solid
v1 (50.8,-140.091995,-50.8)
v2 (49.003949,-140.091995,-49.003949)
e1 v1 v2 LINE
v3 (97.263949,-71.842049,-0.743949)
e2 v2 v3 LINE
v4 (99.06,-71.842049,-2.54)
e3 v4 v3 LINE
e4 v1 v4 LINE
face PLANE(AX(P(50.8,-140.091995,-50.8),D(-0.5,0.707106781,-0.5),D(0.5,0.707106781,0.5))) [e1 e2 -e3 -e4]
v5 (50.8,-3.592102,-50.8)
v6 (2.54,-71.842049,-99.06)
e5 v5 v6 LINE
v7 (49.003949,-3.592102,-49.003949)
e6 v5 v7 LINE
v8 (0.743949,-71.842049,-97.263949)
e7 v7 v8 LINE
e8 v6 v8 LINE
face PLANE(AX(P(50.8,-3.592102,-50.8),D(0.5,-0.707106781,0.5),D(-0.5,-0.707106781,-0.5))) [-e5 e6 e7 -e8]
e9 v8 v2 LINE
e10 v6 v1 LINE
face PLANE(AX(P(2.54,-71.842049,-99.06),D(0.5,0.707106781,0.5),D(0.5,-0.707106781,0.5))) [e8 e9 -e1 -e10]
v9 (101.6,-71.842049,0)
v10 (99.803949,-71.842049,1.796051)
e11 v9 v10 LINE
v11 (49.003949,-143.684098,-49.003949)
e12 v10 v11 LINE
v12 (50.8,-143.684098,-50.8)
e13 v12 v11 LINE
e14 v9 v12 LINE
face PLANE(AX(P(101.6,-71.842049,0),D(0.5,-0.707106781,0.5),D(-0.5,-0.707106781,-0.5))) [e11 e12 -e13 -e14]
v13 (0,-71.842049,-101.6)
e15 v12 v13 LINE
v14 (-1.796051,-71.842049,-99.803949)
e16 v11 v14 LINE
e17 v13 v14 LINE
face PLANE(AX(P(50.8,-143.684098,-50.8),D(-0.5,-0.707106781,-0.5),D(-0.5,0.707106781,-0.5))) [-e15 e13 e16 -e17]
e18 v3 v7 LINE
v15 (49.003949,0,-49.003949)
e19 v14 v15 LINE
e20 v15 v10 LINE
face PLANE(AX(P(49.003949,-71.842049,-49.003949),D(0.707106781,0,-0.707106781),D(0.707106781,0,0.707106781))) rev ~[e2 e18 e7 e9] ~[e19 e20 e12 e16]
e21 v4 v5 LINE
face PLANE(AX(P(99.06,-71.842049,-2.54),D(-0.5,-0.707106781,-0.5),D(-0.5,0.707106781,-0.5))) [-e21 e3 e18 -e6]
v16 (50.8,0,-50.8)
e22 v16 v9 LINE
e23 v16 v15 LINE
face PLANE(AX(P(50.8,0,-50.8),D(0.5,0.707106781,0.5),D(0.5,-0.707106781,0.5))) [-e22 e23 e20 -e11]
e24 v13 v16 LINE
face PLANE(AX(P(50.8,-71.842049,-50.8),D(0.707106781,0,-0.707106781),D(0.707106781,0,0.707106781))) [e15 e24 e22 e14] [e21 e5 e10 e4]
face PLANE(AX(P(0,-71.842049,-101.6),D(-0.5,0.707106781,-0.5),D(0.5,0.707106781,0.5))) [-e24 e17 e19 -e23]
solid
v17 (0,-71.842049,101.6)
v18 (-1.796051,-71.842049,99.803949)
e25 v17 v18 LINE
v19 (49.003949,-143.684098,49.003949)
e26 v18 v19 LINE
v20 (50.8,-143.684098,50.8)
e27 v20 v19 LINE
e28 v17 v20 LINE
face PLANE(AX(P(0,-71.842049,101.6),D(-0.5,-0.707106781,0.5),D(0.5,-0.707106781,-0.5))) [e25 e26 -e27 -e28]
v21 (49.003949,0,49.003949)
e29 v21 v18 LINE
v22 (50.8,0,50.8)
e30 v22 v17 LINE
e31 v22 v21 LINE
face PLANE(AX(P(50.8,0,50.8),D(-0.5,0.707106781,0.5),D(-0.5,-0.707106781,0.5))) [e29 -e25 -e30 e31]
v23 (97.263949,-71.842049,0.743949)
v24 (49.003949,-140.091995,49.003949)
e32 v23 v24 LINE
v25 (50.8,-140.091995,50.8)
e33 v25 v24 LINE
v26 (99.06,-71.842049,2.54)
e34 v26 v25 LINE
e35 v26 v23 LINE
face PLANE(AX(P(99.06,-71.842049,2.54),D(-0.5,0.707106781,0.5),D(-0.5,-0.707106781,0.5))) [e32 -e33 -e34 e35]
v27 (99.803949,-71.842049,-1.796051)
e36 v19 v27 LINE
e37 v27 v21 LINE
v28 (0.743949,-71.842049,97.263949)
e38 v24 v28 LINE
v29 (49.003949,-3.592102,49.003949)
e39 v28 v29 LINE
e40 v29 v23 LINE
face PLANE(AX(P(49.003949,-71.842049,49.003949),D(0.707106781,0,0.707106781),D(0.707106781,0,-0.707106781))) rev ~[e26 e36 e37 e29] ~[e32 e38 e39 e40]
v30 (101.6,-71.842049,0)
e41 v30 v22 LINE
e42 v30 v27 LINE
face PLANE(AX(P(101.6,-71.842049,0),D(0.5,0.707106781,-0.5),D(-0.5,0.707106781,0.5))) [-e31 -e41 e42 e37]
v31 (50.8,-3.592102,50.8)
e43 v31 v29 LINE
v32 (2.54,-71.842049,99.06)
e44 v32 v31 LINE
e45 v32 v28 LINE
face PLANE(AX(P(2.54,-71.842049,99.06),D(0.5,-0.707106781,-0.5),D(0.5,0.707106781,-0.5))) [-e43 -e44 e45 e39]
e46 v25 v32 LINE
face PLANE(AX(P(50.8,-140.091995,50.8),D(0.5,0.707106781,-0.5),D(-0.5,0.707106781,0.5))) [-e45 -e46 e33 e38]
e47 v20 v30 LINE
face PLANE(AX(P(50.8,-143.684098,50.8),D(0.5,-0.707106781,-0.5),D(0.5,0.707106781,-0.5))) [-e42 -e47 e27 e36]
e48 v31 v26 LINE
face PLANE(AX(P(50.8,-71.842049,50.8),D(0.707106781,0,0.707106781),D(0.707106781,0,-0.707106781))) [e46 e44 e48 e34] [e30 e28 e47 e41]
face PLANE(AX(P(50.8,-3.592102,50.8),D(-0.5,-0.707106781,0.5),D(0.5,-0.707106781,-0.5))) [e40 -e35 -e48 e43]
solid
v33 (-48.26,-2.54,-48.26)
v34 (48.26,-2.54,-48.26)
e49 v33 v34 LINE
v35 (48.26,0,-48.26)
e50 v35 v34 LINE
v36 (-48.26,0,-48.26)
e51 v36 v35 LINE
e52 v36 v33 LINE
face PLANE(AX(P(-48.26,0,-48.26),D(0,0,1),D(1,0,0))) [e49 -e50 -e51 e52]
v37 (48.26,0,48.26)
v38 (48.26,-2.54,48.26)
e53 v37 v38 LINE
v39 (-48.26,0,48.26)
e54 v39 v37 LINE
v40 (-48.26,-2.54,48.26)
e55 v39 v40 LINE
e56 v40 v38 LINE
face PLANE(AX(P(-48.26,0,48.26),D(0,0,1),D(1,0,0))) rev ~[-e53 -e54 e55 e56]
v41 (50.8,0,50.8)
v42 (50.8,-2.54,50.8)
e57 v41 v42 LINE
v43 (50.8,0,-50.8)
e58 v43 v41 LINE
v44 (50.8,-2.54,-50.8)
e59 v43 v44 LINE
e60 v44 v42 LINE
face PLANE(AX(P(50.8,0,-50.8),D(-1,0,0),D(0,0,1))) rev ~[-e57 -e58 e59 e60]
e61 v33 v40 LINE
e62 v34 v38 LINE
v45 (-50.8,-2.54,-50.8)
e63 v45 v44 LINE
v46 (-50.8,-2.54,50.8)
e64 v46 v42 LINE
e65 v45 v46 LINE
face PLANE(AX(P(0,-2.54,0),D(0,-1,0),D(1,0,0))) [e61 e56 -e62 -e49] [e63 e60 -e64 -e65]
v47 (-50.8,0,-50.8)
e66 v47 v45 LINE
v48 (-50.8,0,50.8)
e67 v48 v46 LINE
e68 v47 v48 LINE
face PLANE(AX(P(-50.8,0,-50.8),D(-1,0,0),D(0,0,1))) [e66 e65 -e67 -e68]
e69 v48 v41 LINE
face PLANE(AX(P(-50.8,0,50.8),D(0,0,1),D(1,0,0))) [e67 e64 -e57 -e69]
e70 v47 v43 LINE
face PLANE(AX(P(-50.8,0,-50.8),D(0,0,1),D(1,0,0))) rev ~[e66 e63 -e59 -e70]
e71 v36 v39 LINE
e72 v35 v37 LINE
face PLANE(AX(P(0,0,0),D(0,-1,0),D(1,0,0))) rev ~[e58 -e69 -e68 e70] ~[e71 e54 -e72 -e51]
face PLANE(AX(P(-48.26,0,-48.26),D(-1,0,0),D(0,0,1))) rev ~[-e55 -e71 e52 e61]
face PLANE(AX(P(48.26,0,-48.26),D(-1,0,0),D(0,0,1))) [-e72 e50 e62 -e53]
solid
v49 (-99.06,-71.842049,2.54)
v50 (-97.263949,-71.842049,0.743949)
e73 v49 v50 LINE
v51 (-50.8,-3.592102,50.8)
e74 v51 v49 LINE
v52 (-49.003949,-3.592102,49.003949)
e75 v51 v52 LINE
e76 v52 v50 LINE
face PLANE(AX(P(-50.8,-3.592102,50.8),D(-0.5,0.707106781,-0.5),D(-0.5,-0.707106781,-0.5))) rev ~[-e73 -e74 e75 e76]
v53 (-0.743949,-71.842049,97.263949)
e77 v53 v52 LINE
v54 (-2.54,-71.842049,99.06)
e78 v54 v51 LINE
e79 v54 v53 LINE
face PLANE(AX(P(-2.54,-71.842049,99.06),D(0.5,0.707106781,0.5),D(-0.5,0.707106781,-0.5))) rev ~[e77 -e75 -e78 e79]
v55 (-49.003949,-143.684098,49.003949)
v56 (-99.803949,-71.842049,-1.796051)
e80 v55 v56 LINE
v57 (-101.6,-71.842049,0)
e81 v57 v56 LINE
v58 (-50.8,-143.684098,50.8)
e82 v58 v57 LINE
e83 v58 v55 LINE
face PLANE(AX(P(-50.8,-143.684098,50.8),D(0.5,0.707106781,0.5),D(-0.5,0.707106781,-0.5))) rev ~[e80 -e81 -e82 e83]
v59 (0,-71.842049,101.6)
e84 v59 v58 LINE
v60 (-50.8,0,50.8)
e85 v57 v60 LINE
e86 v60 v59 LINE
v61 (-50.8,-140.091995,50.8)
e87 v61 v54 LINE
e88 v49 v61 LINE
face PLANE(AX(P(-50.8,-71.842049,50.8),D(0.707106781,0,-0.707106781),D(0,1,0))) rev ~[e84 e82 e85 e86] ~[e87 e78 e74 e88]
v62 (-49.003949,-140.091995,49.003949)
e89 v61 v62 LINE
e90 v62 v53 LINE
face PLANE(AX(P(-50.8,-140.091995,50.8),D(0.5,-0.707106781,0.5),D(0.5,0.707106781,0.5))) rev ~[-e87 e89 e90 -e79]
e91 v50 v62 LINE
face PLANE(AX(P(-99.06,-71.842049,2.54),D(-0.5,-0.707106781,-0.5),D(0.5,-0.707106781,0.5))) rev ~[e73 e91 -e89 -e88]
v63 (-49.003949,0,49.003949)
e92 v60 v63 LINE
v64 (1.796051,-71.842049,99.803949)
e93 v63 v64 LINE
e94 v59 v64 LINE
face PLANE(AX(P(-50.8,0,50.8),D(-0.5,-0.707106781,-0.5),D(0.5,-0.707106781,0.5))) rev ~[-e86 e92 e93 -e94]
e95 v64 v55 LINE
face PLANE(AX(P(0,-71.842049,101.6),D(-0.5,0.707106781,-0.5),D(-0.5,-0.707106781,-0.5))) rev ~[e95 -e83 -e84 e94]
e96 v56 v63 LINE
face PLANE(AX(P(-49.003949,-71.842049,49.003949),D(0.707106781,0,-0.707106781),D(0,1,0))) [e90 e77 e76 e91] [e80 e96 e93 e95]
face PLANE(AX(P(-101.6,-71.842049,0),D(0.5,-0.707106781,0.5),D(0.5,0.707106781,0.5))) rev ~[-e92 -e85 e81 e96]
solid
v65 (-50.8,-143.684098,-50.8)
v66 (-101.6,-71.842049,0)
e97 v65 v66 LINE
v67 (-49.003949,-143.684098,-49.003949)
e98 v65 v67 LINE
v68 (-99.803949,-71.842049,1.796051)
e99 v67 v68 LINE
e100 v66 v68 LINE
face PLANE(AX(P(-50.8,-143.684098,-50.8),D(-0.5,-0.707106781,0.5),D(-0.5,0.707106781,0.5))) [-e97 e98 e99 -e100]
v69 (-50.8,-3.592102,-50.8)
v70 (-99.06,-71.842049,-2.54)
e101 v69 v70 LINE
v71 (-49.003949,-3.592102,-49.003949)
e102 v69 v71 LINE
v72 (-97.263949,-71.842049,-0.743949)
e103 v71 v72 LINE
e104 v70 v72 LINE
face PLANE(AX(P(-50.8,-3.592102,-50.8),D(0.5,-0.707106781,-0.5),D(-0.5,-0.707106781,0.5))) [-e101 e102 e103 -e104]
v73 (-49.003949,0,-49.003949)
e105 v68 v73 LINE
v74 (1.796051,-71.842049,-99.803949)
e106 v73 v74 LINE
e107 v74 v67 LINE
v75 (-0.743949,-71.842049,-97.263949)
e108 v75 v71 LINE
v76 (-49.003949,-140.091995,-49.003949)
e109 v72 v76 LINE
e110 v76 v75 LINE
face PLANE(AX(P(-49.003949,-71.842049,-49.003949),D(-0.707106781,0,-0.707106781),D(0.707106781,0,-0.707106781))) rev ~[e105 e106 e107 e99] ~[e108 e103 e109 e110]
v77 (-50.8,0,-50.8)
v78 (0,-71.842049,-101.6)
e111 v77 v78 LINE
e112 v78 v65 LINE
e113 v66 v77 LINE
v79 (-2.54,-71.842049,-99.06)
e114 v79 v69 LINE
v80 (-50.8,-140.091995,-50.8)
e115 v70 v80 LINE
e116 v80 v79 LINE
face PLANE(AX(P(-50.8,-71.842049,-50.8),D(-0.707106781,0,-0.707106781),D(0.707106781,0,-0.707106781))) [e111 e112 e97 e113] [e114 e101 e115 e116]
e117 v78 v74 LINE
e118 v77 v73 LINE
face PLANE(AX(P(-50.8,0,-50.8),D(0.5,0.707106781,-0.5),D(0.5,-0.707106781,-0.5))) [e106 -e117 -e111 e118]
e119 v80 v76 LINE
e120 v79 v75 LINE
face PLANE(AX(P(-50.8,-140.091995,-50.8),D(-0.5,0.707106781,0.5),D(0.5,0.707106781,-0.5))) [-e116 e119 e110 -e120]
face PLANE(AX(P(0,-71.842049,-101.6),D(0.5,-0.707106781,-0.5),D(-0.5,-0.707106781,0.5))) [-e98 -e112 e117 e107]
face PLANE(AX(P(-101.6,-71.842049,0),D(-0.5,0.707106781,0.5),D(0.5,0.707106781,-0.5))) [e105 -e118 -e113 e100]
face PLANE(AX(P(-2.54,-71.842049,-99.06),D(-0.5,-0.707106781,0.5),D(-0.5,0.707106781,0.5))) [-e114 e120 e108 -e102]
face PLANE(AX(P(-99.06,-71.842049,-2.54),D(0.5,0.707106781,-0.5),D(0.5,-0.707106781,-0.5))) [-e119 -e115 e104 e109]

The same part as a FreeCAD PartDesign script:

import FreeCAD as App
import Part
import Sketcher

V = App.Vector
Q = App.Units.Quantity


def add_polygon(sketch, points):
    """Adds a closed chain of lines whose ends are joined by coincident constraints."""
    first, n = sketch.GeometryCount, len(points)
    for a, b in zip(points, points[1:] + points[:1]):
        sketch.addGeometry(Part.LineSegment(App.Vector(*a, 0), App.Vector(*b, 0)), False)
    for i in range(n):
        sketch.addConstraint(Sketcher.Constraint("Coincident", first + i, 2, first + (i + 1) % n, 1))

doc = App.newDocument("Part")
body = doc.addObject("PartDesign::Body", "Body")

# Sketch on XZ plane
sketch1 = body.newObject("Sketcher::SketchObject", "Sketch")
sketch1.AttachmentSupport = (doc.getObject("XZ_Plane"), [""])
sketch1.MapMode = "FlatFace"
add_polygon(sketch1, [(-50.8, 50.8), (-50.8, -50.8), (50.8, -50.8), (50.8, 50.8)])  # lines 0-3
add_polygon(sketch1, [(48.26, -48.26), (-48.26, -48.26), (-48.26, 48.26), (48.26, 48.26)])  # lines 4-7
sketch1.addConstraint([
    Sketcher.Constraint("Vertical", 0),
    Sketcher.Constraint("Horizontal", 1),
    Sketcher.Constraint("Vertical", 2),
    Sketcher.Constraint("Horizontal", 3),
    Sketcher.Constraint("Horizontal", 4),
    Sketcher.Constraint("Vertical", 5),
    Sketcher.Constraint("Horizontal", 6),
    Sketcher.Constraint("Vertical", 7),
    Sketcher.Constraint("Symmetric", 0, 2, 2, 2, -1, 1),
    Sketcher.Constraint("Symmetric", 4, 2, 6, 2, -1, 1),
    Sketcher.Constraint("Equal", 3, 0),
    Sketcher.Constraint("Equal", 6, 5),
    Sketcher.Constraint("DistanceX", 1, 1, 1, 2, Q("4 in")),
    Sketcher.Constraint("DistanceX", 4, 2, 4, 1, Q("3.8 in")),
])
pad1 = body.newObject("PartDesign::Pad", "Pad")
pad1.Profile = sketch1
pad1.Length = Q("0.1 in")
body2 = doc.addObject("PartDesign::Body", "Body001")

# Sketch on an angled plane
sketch2 = body2.newObject("Sketcher::SketchObject", "Sketch001")
sketch2.Placement = App.Placement(V(50.8, 0, 50.8), App.Rotation(V(0.707106781, 0, -0.707106781), V(0, 0.999999999, 0), V(0.707106781, 0, 0.707106781), "ZXY"))
add_polygon(sketch2, [(71.842049, -71.842049), (0, 0), (-71.842049, -71.842049), (0, -143.684098)])  # lines 0-3
add_polygon(sketch2, [(68.249946, -71.842049), (0, -140.091995), (-68.249946, -71.842049), (0, -3.592102)])  # lines 4-7
sketch2.addConstraint([
    Sketcher.Constraint("Coincident", 0, 2, -1, 1),
    Sketcher.Constraint("Symmetric", 1, 2, 3, 2, -2),
    Sketcher.Constraint("Symmetric", 5, 2, 7, 2, -2),
    Sketcher.Constraint("PointOnObject", 2, 2, -2),
    Sketcher.Constraint("PointOnObject", 4, 2, -2),
    Sketcher.Constraint("PointOnObject", 6, 2, -2),
    Sketcher.Constraint("Perpendicular", 0, 1),
    Sketcher.Constraint("Perpendicular", 1, 2),
    Sketcher.Constraint("Parallel", 3, 4),
    Sketcher.Constraint("Perpendicular", 5, 6),
    Sketcher.Constraint("Horizontal", 3, 2, 5, 2),
    Sketcher.Constraint("Distance", 0, Q("4 in")),
    Sketcher.Constraint("Distance", 4, Q("3.8 in")),
])
pad2 = body2.newObject("PartDesign::Pad", "Pad001")
pad2.Profile = sketch2
pad2.Length = Q("0.1 in")
pad2.Reversed = True
body3 = doc.addObject("PartDesign::Body", "Body002")

# Sketch on an angled plane
sketch3 = body3.newObject("Sketcher::SketchObject", "Sketch002")
sketch3.Placement = App.Placement(V(-50.8, 0, 50.8), App.Rotation(V(0, 1, 0), V(0.707106781, 0, 0.707106781), V(0.707106781, 0, -0.707106781), "ZXY"))
add_polygon(sketch3, [(0, 0), (-71.842049, 71.842049), (-143.684098, 0), (-71.842049, -71.842049)])  # lines 0-3
add_polygon(sketch3, [(-3.592102, 0), (-71.842049, -68.249946), (-140.091995, 0), (-71.842049, 68.249946)])  # lines 4-7
sketch3.addConstraint([
    Sketcher.Constraint("Coincident", 3, 2, -1, 1),
    Sketcher.Constraint("Symmetric", 0, 2, 2, 2, -1),
    Sketcher.Constraint("Symmetric", 4, 2, 6, 2, -1),
    Sketcher.Constraint("PointOnObject", 1, 2, -1),
    Sketcher.Constraint("PointOnObject", 5, 2, -1),
    Sketcher.Constraint("PointOnObject", 7, 2, -1),
    Sketcher.Constraint("Perpendicular", 0, 1),
    Sketcher.Constraint("Perpendicular", 1, 2),
    Sketcher.Constraint("Parallel", 3, 4),
    Sketcher.Constraint("Perpendicular", 4, 5),
    Sketcher.Constraint("Vertical", 2, 2, 4, 2),
    Sketcher.Constraint("Distance", 0, Q("4 in")),
    Sketcher.Constraint("Distance", 4, Q("3.8 in")),
])
pad3 = body3.newObject("PartDesign::Pad", "Pad002")
pad3.Profile = sketch3
pad3.Length = Q("0.1 in")
body4 = doc.addObject("PartDesign::Body", "Body003")

# Sketch on an angled plane
sketch4 = body4.newObject("Sketcher::SketchObject", "Sketch003")
sketch4.Placement = App.Placement(V(50.8, 0, -50.8), App.Rotation(V(0.707106781, 0, 0.707106781), V(0, -0.999999999, 0), V(0.707106781, 0, -0.707106781), "ZXY"))
add_polygon(sketch4, [(71.842049, 71.842049), (0, 143.684098), (-71.842049, 71.842049), (0, 0)])  # lines 0-3
add_polygon(sketch4, [(68.249946, 71.842049), (0, 3.592102), (-68.249946, 71.842049), (0, 140.091995)])  # lines 4-7
sketch4.addConstraint([
    Sketcher.Constraint("Coincident", 2, 2, -1, 1),
    Sketcher.Constraint("Symmetric", 1, 2, 3, 2, -2),
    Sketcher.Constraint("Symmetric", 5, 2, 7, 2, -2),
    Sketcher.Constraint("PointOnObject", 0, 2, -2),
    Sketcher.Constraint("PointOnObject", 4, 2, -2),
    Sketcher.Constraint("PointOnObject", 6, 2, -2),
    Sketcher.Constraint("Perpendicular", 0, 1),
    Sketcher.Constraint("Perpendicular", 1, 2),
    Sketcher.Constraint("Parallel", 3, 4),
    Sketcher.Constraint("Perpendicular", 5, 6),
    Sketcher.Constraint("Horizontal", 3, 2, 5, 2),
    Sketcher.Constraint("Distance", 0, Q("4 in")),
    Sketcher.Constraint("Distance", 4, Q("3.8 in")),
])
pad4 = body4.newObject("PartDesign::Pad", "Pad003")
pad4.Profile = sketch4
pad4.Length = Q("0.1 in")
pad4.Reversed = True
body5 = doc.addObject("PartDesign::Body", "Body004")

# Sketch on an angled plane
sketch5 = body5.newObject("Sketcher::SketchObject", "Sketch004")
sketch5.Placement = App.Placement(V(-50.8, 0, -50.8), App.Rotation(V(0.707106781, 0, -0.707106781), V(0, -0.999999999, 0), V(-0.707106781, 0, -0.707106781), "ZXY"))
add_polygon(sketch5, [(71.842049, 71.842049), (0, 143.684098), (-71.842049, 71.842049), (0, 0)])  # lines 0-3
add_polygon(sketch5, [(68.249946, 71.842049), (0, 3.592102), (-68.249946, 71.842049), (0, 140.091995)])  # lines 4-7
sketch5.addConstraint([
    Sketcher.Constraint("Coincident", 2, 2, -1, 1),
    Sketcher.Constraint("Symmetric", 1, 2, 3, 2, -2),
    Sketcher.Constraint("Symmetric", 5, 2, 7, 2, -2),
    Sketcher.Constraint("PointOnObject", 0, 2, -2),
    Sketcher.Constraint("PointOnObject", 4, 2, -2),
    Sketcher.Constraint("PointOnObject", 6, 2, -2),
    Sketcher.Constraint("Perpendicular", 0, 1),
    Sketcher.Constraint("Perpendicular", 1, 2),
    Sketcher.Constraint("Parallel", 3, 4),
    Sketcher.Constraint("Perpendicular", 5, 6),
    Sketcher.Constraint("Horizontal", 3, 2, 5, 2),
    Sketcher.Constraint("Distance", 0, Q("4 in")),
    Sketcher.Constraint("Distance", 4, Q("3.8 in")),
])
pad5 = body5.newObject("PartDesign::Pad", "Pad004")
pad5.Profile = sketch5
pad5.Length = Q("0.1 in")
pad5.Reversed = True

doc.recompute()
